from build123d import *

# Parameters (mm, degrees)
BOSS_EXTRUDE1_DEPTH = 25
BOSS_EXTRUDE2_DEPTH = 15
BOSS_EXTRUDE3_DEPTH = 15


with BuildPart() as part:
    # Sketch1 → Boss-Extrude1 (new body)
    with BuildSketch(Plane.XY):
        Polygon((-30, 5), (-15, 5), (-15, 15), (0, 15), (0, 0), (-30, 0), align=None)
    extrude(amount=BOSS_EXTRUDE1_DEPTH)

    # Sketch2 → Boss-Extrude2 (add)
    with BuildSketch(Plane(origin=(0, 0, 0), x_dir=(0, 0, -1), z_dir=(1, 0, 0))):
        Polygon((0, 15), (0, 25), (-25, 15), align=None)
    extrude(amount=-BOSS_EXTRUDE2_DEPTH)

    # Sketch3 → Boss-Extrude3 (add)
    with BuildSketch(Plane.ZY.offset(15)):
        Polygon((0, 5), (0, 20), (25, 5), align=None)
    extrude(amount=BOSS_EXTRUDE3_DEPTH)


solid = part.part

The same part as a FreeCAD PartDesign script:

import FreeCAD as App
import Part
import Sketcher

V = App.Vector
Q = App.Units.Quantity


def add_polygon(sketch, points):
    """Adds a closed chain of lines whose ends are joined by coincident constraints."""
    first, n = sketch.GeometryCount, len(points)
    for a, b in zip(points, points[1:] + points[:1]):
        sketch.addGeometry(Part.LineSegment(App.Vector(*a, 0), App.Vector(*b, 0)), False)
    for i in range(n):
        sketch.addConstraint(Sketcher.Constraint("Coincident", first + i, 2, first + (i + 1) % n, 1))

doc = App.newDocument("Part")
body = doc.addObject("PartDesign::Body", "Body")

# Sketch on XY plane
sketch1 = body.newObject("Sketcher::SketchObject", "Sketch")
sketch1.AttachmentSupport = (doc.getObject("XY_Plane"), [""])
sketch1.MapMode = "FlatFace"
add_polygon(sketch1, [(-15, 5), (-30, 5), (-30, 0), (0, 0), (0, 15), (-15, 15)])  # lines 0-5
sketch1.addConstraint([
    Sketcher.Constraint("Horizontal", 0),
    Sketcher.Constraint("Vertical", 1),
    Sketcher.Constraint("Horizontal", 2),
    Sketcher.Constraint("Vertical", 3),
    Sketcher.Constraint("Horizontal", 4),
    Sketcher.Constraint("Vertical", 5),
    Sketcher.Constraint("Coincident", 2, 2, -1, 1),
    Sketcher.Constraint("Equal", 0, 4),
    Sketcher.Constraint("Equal", 4, 3),
    Sketcher.Constraint("DistanceX", 0, 2, 0, 1, Q("15 mm")),
    Sketcher.Constraint("DistanceY", 1, 2, 1, 1, Q("5 mm")),
])
pad1 = body.newObject("PartDesign::Pad", "Pad")
pad1.Profile = sketch1
pad1.Length = 25

# Sketch on YZ plane
sketch2 = body.newObject("Sketcher::SketchObject", "Sketch001")
sketch2.AttachmentSupport = (doc.getObject("YZ_Plane"), [""])
sketch2.MapMode = "FlatFace"
add_polygon(sketch2, [(15, 0), (25, 0), (15, 25)])  # lines 0-2
sketch2.addConstraint([
    Sketcher.Constraint("Horizontal", 0),
    Sketcher.Constraint("Vertical", 2),
    Sketcher.Constraint("PointOnObject", 0, 2, -1),
    Sketcher.Constraint("DistanceX", 0, 1, 0, 2, Q("10 mm")),
    Sketcher.Constraint("DistanceY", 2, 2, 2, 1, Q("25 mm")),
    Sketcher.Constraint("DistanceX", -1, 1, 0, 2, Q("25 mm")),
])
pad2 = body.newObject("PartDesign::Pad", "Pad001")
pad2.Profile = sketch2
pad2.Length = 15
pad2.Reversed = True

# Sketch on YZ plane
sketch3 = body.newObject("Sketcher::SketchObject", "Sketch002")
sketch3.AttachmentSupport = (doc.getObject("YZ_Plane"), [""])
sketch3.MapMode = "FlatFace"
sketch3.AttachmentOffset = App.Placement(V(0, 0, -15), App.Rotation())
add_polygon(sketch3, [(20, 0), (5, 0), (5, 25)])  # lines 0-2
sketch3.addConstraint([
    Sketcher.Constraint("Horizontal", 0),
    Sketcher.Constraint("Vertical", 1),
    Sketcher.Constraint("PointOnObject", 0, 2, -1),
    Sketcher.Constraint("DistanceX", 0, 2, 0, 1, Q("15 mm")),
    Sketcher.Constraint("DistanceY", 1, 1, 1, 2, Q("25 mm")),
    Sketcher.Constraint("DistanceX", -1, 1, 0, 2, Q("5 mm")),
])
pad3 = body.newObject("PartDesign::Pad", "Pad002")
pad3.Profile = sketch3
pad3.Length = 15
pad3.Reversed = True

doc.recompute()
